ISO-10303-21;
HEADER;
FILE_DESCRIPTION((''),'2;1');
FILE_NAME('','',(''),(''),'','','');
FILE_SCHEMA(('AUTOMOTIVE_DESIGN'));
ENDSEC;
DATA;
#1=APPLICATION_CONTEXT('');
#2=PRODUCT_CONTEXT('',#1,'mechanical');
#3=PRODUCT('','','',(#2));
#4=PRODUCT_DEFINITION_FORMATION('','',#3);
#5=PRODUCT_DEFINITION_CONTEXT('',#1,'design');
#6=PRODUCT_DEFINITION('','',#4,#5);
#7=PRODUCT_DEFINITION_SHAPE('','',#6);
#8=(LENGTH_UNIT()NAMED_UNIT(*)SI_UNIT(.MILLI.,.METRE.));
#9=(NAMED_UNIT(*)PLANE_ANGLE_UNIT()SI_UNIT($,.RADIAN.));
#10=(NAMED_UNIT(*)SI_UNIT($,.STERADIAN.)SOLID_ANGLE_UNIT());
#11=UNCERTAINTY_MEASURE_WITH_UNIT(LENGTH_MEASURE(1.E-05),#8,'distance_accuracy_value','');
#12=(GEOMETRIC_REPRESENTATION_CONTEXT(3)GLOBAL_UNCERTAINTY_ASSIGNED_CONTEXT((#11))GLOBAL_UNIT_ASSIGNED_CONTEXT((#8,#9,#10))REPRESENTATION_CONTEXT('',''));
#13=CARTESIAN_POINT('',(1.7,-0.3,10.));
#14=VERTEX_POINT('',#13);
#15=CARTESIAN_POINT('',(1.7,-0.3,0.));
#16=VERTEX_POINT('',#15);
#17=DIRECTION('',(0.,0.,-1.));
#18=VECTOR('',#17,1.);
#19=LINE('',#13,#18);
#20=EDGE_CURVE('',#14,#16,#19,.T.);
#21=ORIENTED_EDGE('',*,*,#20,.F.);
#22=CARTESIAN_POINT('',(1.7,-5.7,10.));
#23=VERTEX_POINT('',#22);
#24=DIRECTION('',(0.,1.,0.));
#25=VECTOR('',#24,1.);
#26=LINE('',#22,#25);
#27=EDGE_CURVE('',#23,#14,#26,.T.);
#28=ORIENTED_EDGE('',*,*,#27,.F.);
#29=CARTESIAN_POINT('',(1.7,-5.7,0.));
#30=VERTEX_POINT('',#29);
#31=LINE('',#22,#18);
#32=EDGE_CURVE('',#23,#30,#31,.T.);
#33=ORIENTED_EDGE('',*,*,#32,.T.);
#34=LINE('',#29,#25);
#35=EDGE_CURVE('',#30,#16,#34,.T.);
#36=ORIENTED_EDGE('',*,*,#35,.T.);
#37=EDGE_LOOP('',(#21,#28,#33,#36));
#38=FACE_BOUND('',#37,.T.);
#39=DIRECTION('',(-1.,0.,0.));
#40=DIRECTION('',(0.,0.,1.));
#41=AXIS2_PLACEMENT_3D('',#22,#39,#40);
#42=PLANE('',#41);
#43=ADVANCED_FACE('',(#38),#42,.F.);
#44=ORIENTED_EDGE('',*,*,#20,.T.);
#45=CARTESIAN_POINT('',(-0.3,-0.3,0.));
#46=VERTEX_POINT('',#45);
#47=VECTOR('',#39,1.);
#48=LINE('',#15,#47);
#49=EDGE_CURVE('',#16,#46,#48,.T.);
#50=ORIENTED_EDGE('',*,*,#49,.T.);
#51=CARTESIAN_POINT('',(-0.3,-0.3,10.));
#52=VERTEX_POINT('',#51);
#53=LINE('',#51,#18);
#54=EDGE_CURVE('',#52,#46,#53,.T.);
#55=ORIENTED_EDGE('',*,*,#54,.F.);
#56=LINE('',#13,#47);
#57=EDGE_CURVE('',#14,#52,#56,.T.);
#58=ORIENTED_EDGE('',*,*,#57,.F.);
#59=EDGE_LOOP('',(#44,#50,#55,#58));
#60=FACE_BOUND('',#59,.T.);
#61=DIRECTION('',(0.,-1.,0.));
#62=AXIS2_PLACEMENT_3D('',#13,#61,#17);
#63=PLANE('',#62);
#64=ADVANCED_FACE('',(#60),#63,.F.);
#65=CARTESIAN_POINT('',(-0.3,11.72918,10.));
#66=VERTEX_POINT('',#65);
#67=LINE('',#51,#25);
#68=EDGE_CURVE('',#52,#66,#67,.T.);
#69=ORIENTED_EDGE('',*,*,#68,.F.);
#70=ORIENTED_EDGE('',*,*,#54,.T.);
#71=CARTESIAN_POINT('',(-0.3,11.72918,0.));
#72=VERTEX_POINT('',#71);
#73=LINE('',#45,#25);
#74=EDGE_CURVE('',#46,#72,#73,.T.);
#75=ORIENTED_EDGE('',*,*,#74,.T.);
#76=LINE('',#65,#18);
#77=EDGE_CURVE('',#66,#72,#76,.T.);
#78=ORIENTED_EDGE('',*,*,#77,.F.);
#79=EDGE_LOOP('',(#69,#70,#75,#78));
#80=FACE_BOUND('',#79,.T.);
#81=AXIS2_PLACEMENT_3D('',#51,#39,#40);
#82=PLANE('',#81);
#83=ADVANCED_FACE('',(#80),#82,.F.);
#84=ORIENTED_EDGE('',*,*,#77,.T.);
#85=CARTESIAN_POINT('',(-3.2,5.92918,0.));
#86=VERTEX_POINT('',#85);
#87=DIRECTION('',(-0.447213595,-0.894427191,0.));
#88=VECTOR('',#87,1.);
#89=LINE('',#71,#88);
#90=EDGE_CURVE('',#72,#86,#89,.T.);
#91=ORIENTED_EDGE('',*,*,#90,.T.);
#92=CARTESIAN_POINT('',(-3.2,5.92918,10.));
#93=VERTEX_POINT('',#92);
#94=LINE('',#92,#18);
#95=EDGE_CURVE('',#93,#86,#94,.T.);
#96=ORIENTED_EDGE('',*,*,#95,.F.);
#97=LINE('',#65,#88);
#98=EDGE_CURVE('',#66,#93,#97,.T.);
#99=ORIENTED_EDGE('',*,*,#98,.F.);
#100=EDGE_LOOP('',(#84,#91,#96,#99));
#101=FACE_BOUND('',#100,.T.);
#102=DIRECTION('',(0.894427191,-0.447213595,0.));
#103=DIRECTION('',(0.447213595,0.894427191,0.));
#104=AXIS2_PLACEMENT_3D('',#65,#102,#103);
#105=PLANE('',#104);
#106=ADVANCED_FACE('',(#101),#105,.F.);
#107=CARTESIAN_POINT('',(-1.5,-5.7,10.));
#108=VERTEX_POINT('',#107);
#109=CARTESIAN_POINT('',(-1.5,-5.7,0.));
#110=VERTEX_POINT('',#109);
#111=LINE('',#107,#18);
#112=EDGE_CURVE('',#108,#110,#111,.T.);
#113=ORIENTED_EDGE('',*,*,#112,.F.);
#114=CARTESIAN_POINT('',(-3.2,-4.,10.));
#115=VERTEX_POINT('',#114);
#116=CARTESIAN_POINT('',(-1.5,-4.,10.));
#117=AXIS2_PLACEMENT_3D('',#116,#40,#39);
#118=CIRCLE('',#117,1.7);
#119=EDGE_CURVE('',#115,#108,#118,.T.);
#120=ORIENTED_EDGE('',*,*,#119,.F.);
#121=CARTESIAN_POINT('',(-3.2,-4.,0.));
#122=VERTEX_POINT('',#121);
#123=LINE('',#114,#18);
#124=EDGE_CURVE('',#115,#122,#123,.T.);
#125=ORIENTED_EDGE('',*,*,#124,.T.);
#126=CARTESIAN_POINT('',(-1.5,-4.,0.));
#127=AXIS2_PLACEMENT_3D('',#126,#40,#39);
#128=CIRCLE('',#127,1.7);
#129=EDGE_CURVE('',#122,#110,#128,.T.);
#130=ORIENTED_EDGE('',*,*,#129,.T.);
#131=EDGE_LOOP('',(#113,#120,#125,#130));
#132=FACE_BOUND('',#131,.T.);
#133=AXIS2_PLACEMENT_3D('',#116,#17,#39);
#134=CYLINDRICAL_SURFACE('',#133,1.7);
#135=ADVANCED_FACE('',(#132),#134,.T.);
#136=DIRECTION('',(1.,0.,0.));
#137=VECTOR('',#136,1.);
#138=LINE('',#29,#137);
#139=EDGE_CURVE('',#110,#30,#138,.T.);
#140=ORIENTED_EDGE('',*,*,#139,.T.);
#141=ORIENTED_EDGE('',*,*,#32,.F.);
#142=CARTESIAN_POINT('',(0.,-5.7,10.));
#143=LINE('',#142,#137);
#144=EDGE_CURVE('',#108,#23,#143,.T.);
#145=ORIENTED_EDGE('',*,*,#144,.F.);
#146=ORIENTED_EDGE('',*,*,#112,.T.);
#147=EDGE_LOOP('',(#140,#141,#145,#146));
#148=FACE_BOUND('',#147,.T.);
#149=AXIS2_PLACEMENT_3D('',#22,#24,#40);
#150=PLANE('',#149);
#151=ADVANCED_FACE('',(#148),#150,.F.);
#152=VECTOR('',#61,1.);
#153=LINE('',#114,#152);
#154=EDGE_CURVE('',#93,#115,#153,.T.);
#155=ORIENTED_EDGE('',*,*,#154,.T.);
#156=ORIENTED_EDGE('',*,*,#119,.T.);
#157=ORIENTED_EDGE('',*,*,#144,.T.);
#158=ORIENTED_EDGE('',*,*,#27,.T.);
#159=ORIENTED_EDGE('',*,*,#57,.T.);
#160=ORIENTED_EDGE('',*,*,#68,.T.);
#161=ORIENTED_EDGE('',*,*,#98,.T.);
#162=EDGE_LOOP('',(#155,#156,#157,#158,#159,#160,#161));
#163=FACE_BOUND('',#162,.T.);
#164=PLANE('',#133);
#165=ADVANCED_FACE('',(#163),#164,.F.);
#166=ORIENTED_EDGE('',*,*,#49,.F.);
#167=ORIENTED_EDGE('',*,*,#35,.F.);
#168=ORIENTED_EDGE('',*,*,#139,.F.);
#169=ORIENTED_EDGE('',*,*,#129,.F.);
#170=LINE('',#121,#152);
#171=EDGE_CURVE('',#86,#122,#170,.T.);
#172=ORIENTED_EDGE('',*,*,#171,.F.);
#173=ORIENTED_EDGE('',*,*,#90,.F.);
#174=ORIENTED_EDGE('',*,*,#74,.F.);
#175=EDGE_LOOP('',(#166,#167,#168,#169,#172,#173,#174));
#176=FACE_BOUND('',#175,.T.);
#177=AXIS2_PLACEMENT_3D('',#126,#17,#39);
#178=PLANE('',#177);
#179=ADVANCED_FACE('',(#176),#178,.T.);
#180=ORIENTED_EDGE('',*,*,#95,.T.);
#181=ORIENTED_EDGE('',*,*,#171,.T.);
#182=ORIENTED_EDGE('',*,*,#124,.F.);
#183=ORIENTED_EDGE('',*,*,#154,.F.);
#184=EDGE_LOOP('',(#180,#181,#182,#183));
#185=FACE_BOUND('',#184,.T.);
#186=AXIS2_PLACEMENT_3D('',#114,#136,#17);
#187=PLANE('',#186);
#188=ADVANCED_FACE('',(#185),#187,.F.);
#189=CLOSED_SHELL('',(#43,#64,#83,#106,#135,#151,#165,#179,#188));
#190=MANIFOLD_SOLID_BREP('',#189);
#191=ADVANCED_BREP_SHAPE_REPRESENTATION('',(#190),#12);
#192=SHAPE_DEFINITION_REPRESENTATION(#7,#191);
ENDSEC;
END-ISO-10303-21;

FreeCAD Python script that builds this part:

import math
import FreeCAD as App
import Part
import Sketcher

doc = App.newDocument("Part")
body = doc.addObject("PartDesign::Body", "Body")

sketch1 = body.newObject("Sketcher::SketchObject", "Sketch")
sketch1.AttachmentSupport = (doc.getObject("XY_Plane"), [""])
sketch1.MapMode = "FlatFace"
sketch1.addGeometry([
    Part.LineSegment(App.Vector(-0.3, 11.72918, 0), App.Vector(-3.2, 5.92918, 0)),
    Part.LineSegment(App.Vector(-3.2, 5.92918, 0), App.Vector(-3.2, -4, 0)),
    Part.ArcOfCircle(Part.Circle(App.Vector(-1.5, -4, 0), App.Vector(0, 0, 1), 1.7), math.radians(180), math.radians(270)),
    Part.LineSegment(App.Vector(-1.5, -5.7, 0), App.Vector(1.7, -5.7, 0)),
    Part.LineSegment(App.Vector(1.7, -5.7, 0), App.Vector(1.7, -0.3, 0)),
    Part.LineSegment(App.Vector(1.7, -0.3, 0), App.Vector(-0.3, -0.3, 0)),
    Part.LineSegment(App.Vector(-0.3, -0.3, 0), App.Vector(-0.3, 11.72918, 0)),
], False)
sketch1.addConstraint([
    Sketcher.Constraint("Coincident", 0, 2, 1, 1),
    Sketcher.Constraint("Tangent", 1, 2, 2, 1),
    Sketcher.Constraint("Tangent", 2, 2, 3, 1),
    Sketcher.Constraint("Coincident", 3, 2, 4, 1),
    Sketcher.Constraint("Coincident", 4, 2, 5, 1),
    Sketcher.Constraint("Coincident", 5, 2, 6, 1),
    Sketcher.Constraint("Coincident", 6, 2, 0, 1),
    Sketcher.Constraint("Vertical", 1),
    Sketcher.Constraint("Horizontal", 3),
    Sketcher.Constraint("Vertical", 4),
    Sketcher.Constraint("Horizontal", 5),
    Sketcher.Constraint("Vertical", 6),
    Sketcher.Constraint("Radius", 2, 1.7),
    Sketcher.Constraint("DistanceX", 5, 2, 5, 1, 2.0),
    Sketcher.Constraint("DistanceX", 3, 1, 3, 2, 3.2),
    Sketcher.Constraint("DistanceY", 4, 1, 4, 2, 5.4),
    Sketcher.Constraint("DistanceY", 2, 3, -1, 1, 4.0),
    Sketcher.Constraint("DistanceX", 2, 3, -1, 1, 1.5),
    Sketcher.Constraint("DistanceY", 0, 2, 6, 2, 5.8),
    Sketcher.Constraint("DistanceY", 1, 2, 1, 1, 9.92918),
])
pad1 = body.newObject("PartDesign::Pad", "Pad")
pad1.Profile = sketch1
pad1.Length = 10

doc.recompute()
